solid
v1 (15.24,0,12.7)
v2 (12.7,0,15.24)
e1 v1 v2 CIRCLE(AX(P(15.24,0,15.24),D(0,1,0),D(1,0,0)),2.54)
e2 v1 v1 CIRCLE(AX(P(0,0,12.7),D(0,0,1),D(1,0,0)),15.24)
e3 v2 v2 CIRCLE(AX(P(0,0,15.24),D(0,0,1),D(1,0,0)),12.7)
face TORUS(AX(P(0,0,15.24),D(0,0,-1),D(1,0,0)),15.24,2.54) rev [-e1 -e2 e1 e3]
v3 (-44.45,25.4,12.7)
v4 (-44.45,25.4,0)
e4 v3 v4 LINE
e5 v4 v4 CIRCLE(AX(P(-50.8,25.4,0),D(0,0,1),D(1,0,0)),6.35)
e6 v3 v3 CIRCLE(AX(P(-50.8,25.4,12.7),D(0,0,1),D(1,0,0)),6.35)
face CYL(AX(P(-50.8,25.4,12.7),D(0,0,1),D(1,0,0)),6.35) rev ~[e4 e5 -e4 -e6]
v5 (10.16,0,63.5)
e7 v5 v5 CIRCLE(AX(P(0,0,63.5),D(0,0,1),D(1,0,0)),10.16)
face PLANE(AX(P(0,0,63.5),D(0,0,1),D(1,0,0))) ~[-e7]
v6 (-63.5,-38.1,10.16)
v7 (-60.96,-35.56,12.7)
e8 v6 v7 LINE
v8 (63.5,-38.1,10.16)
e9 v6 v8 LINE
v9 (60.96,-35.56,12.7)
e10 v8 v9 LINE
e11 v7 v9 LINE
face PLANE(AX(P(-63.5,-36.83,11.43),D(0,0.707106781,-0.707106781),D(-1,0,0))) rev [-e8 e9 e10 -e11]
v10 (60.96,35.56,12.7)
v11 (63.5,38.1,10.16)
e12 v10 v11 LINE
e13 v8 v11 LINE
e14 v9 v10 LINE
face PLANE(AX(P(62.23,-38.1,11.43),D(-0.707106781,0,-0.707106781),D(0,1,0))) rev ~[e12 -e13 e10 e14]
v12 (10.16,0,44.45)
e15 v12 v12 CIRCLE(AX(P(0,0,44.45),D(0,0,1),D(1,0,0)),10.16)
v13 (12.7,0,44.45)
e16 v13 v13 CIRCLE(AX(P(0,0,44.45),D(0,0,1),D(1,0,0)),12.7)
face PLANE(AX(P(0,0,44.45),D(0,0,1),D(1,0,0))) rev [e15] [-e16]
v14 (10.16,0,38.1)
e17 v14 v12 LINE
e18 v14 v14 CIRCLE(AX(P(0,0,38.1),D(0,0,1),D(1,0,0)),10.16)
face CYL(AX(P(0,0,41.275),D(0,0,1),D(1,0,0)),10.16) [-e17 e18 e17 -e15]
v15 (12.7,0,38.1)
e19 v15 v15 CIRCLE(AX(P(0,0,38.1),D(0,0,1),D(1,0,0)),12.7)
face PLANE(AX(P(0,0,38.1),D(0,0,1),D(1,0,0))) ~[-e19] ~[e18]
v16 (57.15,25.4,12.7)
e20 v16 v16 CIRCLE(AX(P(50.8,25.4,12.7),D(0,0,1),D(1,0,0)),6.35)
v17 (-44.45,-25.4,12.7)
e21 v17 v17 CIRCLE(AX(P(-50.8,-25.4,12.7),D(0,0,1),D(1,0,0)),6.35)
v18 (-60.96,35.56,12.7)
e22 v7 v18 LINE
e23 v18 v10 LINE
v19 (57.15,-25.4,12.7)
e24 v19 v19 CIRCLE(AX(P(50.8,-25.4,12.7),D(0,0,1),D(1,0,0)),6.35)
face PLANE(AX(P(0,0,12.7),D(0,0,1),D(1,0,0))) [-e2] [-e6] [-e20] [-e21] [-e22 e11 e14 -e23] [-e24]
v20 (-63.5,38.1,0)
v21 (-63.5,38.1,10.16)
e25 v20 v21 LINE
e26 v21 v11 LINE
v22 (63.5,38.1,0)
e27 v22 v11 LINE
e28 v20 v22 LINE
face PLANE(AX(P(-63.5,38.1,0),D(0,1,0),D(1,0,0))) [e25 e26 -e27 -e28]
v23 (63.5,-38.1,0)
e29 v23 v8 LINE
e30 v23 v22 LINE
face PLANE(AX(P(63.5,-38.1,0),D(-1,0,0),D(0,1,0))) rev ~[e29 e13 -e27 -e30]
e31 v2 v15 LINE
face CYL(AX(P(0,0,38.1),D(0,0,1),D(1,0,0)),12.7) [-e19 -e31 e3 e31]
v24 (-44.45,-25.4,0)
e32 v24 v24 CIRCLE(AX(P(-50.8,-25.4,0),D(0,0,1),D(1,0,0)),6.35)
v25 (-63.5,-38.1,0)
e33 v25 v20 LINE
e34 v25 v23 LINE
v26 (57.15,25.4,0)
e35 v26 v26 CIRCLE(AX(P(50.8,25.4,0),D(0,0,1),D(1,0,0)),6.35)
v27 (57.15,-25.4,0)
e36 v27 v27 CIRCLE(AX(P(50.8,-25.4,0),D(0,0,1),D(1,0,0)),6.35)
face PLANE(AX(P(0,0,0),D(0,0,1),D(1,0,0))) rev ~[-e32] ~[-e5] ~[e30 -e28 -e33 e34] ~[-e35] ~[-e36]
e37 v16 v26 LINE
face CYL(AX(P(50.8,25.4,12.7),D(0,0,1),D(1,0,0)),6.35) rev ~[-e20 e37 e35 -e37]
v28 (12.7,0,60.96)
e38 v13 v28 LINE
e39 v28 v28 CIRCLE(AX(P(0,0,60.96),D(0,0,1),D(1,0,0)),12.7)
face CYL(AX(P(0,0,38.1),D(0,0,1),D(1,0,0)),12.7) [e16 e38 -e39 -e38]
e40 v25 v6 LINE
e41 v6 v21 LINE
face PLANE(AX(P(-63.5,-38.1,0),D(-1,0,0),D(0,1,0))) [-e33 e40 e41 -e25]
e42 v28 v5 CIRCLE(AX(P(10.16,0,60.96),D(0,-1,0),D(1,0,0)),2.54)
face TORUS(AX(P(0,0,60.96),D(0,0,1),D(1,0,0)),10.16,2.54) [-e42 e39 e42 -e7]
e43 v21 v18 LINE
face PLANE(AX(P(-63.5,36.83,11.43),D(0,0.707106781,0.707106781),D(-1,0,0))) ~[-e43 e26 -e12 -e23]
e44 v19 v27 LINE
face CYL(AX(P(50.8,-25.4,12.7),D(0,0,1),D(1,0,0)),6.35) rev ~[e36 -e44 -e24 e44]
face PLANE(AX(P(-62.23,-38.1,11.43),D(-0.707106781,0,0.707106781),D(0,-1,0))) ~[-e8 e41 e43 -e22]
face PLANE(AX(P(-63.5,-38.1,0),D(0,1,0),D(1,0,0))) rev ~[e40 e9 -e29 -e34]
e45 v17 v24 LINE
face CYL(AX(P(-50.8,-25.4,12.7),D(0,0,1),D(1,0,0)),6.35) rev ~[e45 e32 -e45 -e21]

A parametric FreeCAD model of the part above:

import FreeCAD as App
import Part
import Sketcher

V = App.Vector
Q = App.Units.Quantity


def edges_at(feature, points):
    """Names of the edges that pass closest to the given points."""
    edges = feature.Shape.Edges
    near = lambda p: min(range(len(edges)), key=lambda i: edges[i].distToShape(Part.Vertex(*p))[0])
    return sorted({f"Edge{near(p) + 1}" for p in points})

doc = App.newDocument("Part")
body = doc.addObject("PartDesign::Body", "Body")

sketch1 = doc.addObject("Sketcher::SketchObject", "Sketch")
body.addObject(sketch1)
sketch1.AttachmentSupport = (doc.XY_Plane, [""])
sketch1.MapMode = "FlatFace"
sketch1.addGeometry(Part.LineSegment(V(-64, 38, 0), V(-64, -38, 0)), False)
sketch1.addGeometry(Part.LineSegment(V(-64, -38, 0), V(64, -38, 0)), False)
sketch1.addGeometry(Part.LineSegment(V(64, -38, 0), V(64, 38, 0)), False)
sketch1.addGeometry(Part.LineSegment(V(64, 38, 0), V(-64, 38, 0)), False)
sketch1.addConstraint(Sketcher.Constraint("Coincident", 0, 2, 1, 1))
sketch1.addConstraint(Sketcher.Constraint("Coincident", 1, 2, 2, 1))
sketch1.addConstraint(Sketcher.Constraint("Coincident", 2, 2, 3, 1))
sketch1.addConstraint(Sketcher.Constraint("Coincident", 3, 2, 0, 1))
sketch1.addConstraint(Sketcher.Constraint("Vertical", 0))
sketch1.addConstraint(Sketcher.Constraint("Horizontal", 1))
sketch1.addConstraint(Sketcher.Constraint("Vertical", 2))
sketch1.addConstraint(Sketcher.Constraint("Horizontal", 3))
sketch1.addConstraint(Sketcher.Constraint("Symmetric", 0, 2, 2, 2, -1, 1))
sketch1.addConstraint(Sketcher.Constraint("DistanceX", 1, 1, 1, 2, Q("5 in")))
sketch1.addConstraint(Sketcher.Constraint("DistanceY", 0, 2, 0, 1, Q("3 in")))
pad1 = doc.addObject("PartDesign::Pad", "Pad")
body.addObject(pad1)
pad1.Profile = sketch1
pad1.Length = Q("0.5 in")

sketch2 = doc.addObject("Sketcher::SketchObject", "Sketch001")
body.addObject(sketch2)
sketch2.AttachmentSupport = (doc.XY_Plane, [""])
sketch2.MapMode = "FlatFace"
sketch2.AttachmentOffset = App.Placement(V(0, 0, 0.5 * 25.4), App.Rotation())
sketch2.addGeometry(Part.Circle(V(-51, -25, 0), V(0, 0, 1), 6), False)
sketch2.addGeometry(Part.Circle(V(51, 25, 0), V(0, 0, 1), 6), False)
sketch2.addGeometry(Part.Circle(V(51, -25, 0), V(0, 0, 1), 6), False)
sketch2.addGeometry(Part.Circle(V(-51, 25, 0), V(0, 0, 1), 6), False)
sketch2.addConstraint(Sketcher.Constraint("Equal", 0, 1))
sketch2.addConstraint(Sketcher.Constraint("Equal", 1, 2))
sketch2.addConstraint(Sketcher.Constraint("Equal", 2, 3))
sketch2.addConstraint(Sketcher.Constraint("Symmetric", 0, 3, 1, 3, -1, 1))
sketch2.addConstraint(Sketcher.Constraint("Symmetric", 2, 3, 3, 3, -1, 1))
sketch2.addConstraint(Sketcher.Constraint("Symmetric", 0, 3, 2, 3, -2))
sketch2.addConstraint(Sketcher.Constraint("Diameter", 0, Q("0.5 in")))
sketch2.addConstraint(Sketcher.Constraint("DistanceX", 0, 3, -1, 1, Q("2 in")))
sketch2.addConstraint(Sketcher.Constraint("DistanceY", 0, 3, -1, 1, Q("1 in")))
pocket1 = doc.addObject("PartDesign::Pocket", "Pocket")
body.addObject(pocket1)
pocket1.Profile = sketch2
pocket1.Type = "ThroughAll"

sketch3 = doc.addObject("Sketcher::SketchObject", "Sketch002")
body.addObject(sketch3)
sketch3.AttachmentSupport = (doc.XZ_Plane, [""])
sketch3.MapMode = "FlatFace"
sketch3.addGeometry(Part.LineSegment(V(0, 64, 0), V(0, 13, 0)), False)
sketch3.addGeometry(Part.LineSegment(V(0, 13, 0), V(13, 13, 0)), False)
sketch3.addGeometry(Part.LineSegment(V(13, 13, 0), V(13, 64, 0)), False)
sketch3.addGeometry(Part.LineSegment(V(13, 64, 0), V(0, 64, 0)), False)
sketch3.addConstraint(Sketcher.Constraint("Coincident", 0, 2, 1, 1))
sketch3.addConstraint(Sketcher.Constraint("Coincident", 1, 2, 2, 1))
sketch3.addConstraint(Sketcher.Constraint("Coincident", 2, 2, 3, 1))
sketch3.addConstraint(Sketcher.Constraint("Coincident", 3, 2, 0, 1))
sketch3.addConstraint(Sketcher.Constraint("Vertical", 0))
sketch3.addConstraint(Sketcher.Constraint("Horizontal", 1))
sketch3.addConstraint(Sketcher.Constraint("Vertical", 2))
sketch3.addConstraint(Sketcher.Constraint("Horizontal", 3))
sketch3.addConstraint(Sketcher.Constraint("PointOnObject", 0, 2, -2))
sketch3.addConstraint(Sketcher.Constraint("DistanceY", 0, 2, 0, 1, Q("2 in")))
sketch3.addConstraint(Sketcher.Constraint("DistanceX", 1, 1, 1, 2, Q("0.5 in")))
sketch3.addConstraint(Sketcher.Constraint("DistanceY", -1, 1, 0, 2, Q("0.5 in")))
revolution = doc.addObject("PartDesign::Revolution", "Revolution")
body.addObject(revolution)
revolution.Profile = sketch3
revolution.ReferenceAxis = (sketch3, ["V_Axis"])
revolution.Angle = 360

sketch4 = doc.addObject("Sketcher::SketchObject", "Sketch003")
body.addObject(sketch4)
sketch4.AttachmentSupport = (doc.XZ_Plane, [""])
sketch4.MapMode = "FlatFace"
sketch4.addGeometry(Part.LineSegment(V(10, 44, 0), V(10, 38, 0)), False)
sketch4.addGeometry(Part.LineSegment(V(10, 38, 0), V(26, 38, 0)), False)
sketch4.addGeometry(Part.LineSegment(V(26, 38, 0), V(26, 44, 0)), False)
sketch4.addGeometry(Part.LineSegment(V(26, 44, 0), V(10, 44, 0)), False)
sketch4.addConstraint(Sketcher.Constraint("Coincident", 0, 2, 1, 1))
sketch4.addConstraint(Sketcher.Constraint("Coincident", 1, 2, 2, 1))
sketch4.addConstraint(Sketcher.Constraint("Coincident", 2, 2, 3, 1))
sketch4.addConstraint(Sketcher.Constraint("Coincident", 3, 2, 0, 1))
sketch4.addConstraint(Sketcher.Constraint("Vertical", 0))
sketch4.addConstraint(Sketcher.Constraint("Horizontal", 1))
sketch4.addConstraint(Sketcher.Constraint("Vertical", 2))
sketch4.addConstraint(Sketcher.Constraint("Horizontal", 3))
sketch4.addConstraint(Sketcher.Constraint("DistanceY", 0, 2, 0, 1, Q("0.25 in")))
sketch4.addConstraint(Sketcher.Constraint("DistanceX", -1, 1, 0, 2, Q("0.4 in")))
sketch4.addConstraint(Sketcher.Constraint("DistanceY", -1, 1, 0, 2, Q("1.5 in")))
sketch4.addConstraint(Sketcher.Constraint("DistanceX", 1, 1, 1, 2, Q("15.515666 mm")))
groove = doc.addObject("PartDesign::Groove", "Groove")
body.addObject(groove)
groove.Profile = sketch4
groove.ReferenceAxis = (sketch4, ["V_Axis"])
groove.Angle = 360
doc.recompute()

chamfer = doc.addObject("PartDesign::Chamfer", "Chamfer")
body.addObject(chamfer)
chamfer.Base = (groove, edges_at(groove, [
    (0, -38.1, 12.7),
    (63.5, 0, 12.7),
    (0, 38.1, 12.7),
    (-63.5, 0, 12.7),
]))
chamfer.Size = Q("0.1 in")
doc.recompute()

fillet = doc.addObject("PartDesign::Fillet", "Fillet")
body.addObject(fillet)
fillet.Base = (chamfer, edges_at(chamfer, [(-12.7, 0, 12.7), (-12.7, 0, 63.5)]))
fillet.Radius = Q("0.1 in")

doc.recompute()
